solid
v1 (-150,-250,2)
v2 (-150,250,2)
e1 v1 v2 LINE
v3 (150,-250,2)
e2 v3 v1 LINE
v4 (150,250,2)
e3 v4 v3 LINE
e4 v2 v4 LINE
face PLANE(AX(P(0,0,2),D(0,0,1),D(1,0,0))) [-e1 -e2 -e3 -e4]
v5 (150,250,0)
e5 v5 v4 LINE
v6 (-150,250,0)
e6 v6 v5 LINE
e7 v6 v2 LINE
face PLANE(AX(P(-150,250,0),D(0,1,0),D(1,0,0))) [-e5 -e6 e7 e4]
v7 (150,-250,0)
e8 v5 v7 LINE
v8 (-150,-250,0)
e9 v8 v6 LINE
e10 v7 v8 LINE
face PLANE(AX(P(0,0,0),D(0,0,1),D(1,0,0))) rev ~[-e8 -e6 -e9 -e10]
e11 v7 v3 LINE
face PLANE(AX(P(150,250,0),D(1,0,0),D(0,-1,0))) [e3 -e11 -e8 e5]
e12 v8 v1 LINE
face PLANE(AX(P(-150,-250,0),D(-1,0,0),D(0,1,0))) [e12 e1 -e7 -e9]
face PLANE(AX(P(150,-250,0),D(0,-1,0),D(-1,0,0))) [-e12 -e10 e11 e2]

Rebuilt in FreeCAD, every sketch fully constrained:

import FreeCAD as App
import Part
import Sketcher

doc = App.newDocument("Part")
body = doc.addObject("PartDesign::Body", "Body")

# Sketch on XY plane
sketch1 = body.newObject("Sketcher::SketchObject", "Sketch")
sketch1.AttachmentSupport = (doc.getObject("XY_Plane"), [""])
sketch1.MapMode = "FlatFace"
sketch1.addGeometry([
    Part.LineSegment(App.Vector(150, 250, 0), App.Vector(-150, 250, 0)),
    Part.LineSegment(App.Vector(-150, 250, 0), App.Vector(-150, -250, 0)),
    Part.LineSegment(App.Vector(-150, -250, 0), App.Vector(150, -250, 0)),
    Part.LineSegment(App.Vector(150, -250, 0), App.Vector(150, 250, 0)),
], False)
sketch1.addConstraint([
    Sketcher.Constraint("Coincident", 0, 2, 1, 1),
    Sketcher.Constraint("Coincident", 1, 2, 2, 1),
    Sketcher.Constraint("Coincident", 2, 2, 3, 1),
    Sketcher.Constraint("Coincident", 3, 2, 0, 1),
    Sketcher.Constraint("Horizontal", 0),
    Sketcher.Constraint("Vertical", 1),
    Sketcher.Constraint("Horizontal", 2),
    Sketcher.Constraint("Vertical", 3),
    Sketcher.Constraint("Symmetric", 0, 2, 2, 2, -1, 1),
    Sketcher.Constraint("DistanceX", 0, 2, 0, 1, 300.0),
    Sketcher.Constraint("DistanceY", 1, 2, 1, 1, 500.0),
])
pad1 = body.newObject("PartDesign::Pad", "Pad")
pad1.Profile = sketch1
pad1.Length = 2

doc.recompute()
